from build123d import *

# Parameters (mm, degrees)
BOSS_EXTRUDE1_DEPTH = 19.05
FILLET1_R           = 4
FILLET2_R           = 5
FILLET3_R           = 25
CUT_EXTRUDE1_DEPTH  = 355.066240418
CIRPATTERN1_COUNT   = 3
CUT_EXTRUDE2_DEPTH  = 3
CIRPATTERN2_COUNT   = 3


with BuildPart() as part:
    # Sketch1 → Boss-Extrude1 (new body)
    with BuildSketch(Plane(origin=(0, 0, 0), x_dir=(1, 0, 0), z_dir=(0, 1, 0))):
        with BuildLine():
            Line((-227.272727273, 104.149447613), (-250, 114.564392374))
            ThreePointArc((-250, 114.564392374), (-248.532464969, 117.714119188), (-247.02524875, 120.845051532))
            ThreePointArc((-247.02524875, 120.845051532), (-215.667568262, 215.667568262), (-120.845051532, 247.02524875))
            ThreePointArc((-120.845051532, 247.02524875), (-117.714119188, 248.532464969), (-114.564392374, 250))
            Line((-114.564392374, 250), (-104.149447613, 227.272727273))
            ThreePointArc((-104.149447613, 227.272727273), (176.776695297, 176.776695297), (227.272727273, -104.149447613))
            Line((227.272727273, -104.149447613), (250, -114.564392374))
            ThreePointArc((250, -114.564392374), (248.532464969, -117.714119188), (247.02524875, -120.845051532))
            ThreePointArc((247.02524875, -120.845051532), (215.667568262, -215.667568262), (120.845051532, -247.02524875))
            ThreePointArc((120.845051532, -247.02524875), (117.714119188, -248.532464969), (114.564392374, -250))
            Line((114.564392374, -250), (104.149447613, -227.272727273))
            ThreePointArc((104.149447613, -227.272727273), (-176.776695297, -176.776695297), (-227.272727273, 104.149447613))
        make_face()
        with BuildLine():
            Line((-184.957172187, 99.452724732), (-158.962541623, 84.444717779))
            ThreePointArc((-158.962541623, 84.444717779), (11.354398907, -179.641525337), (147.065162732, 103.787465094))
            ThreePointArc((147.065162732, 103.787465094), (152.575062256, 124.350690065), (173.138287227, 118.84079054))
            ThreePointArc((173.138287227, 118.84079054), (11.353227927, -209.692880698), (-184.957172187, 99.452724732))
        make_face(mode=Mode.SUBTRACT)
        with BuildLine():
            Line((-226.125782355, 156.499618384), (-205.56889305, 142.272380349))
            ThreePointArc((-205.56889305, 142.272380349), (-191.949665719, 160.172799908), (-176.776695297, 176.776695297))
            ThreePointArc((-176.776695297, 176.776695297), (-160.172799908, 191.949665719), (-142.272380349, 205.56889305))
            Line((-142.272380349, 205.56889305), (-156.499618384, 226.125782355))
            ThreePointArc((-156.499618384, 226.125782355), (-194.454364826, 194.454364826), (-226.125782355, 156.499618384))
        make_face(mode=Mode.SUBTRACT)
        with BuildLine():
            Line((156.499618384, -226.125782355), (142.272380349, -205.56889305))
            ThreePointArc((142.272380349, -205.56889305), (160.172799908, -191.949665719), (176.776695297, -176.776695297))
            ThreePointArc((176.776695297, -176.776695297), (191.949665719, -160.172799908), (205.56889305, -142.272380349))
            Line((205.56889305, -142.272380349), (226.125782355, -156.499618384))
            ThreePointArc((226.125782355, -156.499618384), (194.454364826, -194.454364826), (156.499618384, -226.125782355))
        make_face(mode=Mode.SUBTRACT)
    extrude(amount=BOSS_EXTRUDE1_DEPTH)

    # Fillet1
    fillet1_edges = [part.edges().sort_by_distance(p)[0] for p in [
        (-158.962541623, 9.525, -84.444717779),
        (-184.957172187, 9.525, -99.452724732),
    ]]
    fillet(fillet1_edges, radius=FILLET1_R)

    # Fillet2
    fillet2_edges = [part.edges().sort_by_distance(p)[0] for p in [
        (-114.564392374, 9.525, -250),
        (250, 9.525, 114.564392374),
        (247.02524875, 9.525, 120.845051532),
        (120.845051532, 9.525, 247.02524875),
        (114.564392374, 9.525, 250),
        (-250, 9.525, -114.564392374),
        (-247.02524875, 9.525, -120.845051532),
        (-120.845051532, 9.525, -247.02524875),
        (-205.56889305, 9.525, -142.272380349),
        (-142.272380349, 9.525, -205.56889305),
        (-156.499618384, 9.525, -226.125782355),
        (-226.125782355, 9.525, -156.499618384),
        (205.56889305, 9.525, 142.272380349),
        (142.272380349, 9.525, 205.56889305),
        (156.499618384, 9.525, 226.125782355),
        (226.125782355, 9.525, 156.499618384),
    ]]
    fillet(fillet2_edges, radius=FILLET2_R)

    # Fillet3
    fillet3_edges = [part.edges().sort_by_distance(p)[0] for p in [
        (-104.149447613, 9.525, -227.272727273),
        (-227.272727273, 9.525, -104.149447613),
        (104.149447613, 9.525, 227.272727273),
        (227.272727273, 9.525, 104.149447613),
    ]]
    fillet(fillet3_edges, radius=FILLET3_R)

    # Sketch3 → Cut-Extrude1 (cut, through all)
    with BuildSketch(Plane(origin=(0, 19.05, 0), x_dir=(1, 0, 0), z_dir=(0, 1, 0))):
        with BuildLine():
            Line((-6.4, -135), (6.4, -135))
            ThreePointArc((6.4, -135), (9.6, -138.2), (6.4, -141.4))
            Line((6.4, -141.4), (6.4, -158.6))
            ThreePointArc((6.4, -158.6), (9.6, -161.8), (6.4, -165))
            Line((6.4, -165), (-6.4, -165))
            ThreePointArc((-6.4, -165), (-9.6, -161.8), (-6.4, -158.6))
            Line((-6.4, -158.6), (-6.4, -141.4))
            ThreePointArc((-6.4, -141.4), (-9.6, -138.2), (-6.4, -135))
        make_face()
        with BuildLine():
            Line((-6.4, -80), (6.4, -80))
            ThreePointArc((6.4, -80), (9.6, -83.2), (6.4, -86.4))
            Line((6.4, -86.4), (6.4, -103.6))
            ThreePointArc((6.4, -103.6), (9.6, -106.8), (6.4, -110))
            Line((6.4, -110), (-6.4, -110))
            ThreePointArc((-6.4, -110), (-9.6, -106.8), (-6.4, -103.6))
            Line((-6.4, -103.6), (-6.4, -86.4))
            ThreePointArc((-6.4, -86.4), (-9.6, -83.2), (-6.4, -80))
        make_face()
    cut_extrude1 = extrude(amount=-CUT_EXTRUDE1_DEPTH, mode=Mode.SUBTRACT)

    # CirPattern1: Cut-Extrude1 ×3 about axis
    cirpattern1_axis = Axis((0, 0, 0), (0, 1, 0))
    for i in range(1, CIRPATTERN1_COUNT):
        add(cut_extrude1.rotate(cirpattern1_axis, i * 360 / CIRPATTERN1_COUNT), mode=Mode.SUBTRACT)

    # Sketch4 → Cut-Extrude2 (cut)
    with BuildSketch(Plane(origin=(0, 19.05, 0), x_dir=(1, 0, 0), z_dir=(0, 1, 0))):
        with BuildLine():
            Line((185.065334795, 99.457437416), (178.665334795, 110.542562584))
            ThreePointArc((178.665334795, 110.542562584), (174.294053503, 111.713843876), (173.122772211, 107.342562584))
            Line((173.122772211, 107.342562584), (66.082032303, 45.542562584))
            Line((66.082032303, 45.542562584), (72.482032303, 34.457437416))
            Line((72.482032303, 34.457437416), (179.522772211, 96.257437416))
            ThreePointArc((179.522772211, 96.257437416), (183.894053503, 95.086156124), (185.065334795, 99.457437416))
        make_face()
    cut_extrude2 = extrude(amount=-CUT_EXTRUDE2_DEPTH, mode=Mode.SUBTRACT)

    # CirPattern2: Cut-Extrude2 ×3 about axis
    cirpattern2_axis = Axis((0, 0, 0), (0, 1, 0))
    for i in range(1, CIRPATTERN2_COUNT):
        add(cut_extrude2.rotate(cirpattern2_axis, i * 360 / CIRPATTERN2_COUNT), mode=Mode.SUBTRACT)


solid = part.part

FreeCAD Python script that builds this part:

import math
import FreeCAD as App
import Part
import Sketcher
from FreeCAD import Vector
Q = App.Units.Quantity


def edges_at(feature, points):
    """Names of the edges that pass closest to the given points."""
    edges = feature.Shape.Edges
    near = lambda p: min(range(len(edges)), key=lambda i: edges[i].distToShape(Part.Vertex(*p))[0])
    return sorted({f"Edge{near(p) + 1}" for p in points})

doc = App.newDocument("Part")
params = doc.addObject("Spreadsheet::Sheet", "Params")
for row, (alias, value) in enumerate([
    ("sketch1_radius", "250 mm"),
    ("sketch1_radius2", "275 mm"),
    ("sketch1_radius3", "180 mm"),
    ("sketch1_radius4", "210 mm"),
    ("pad1_length", "19.05 mm"),
    ("fillet_radius", "4 mm"),
    ("fillet2_radius", "5 mm"),
    ("fillet3_radius", "25 mm"),
    ("sketch2_radius", "3.2 mm"),
    ("sketch2_width", "12.8 mm"),
    ("sketch2_height", "17.2 mm"),
    ("sketch3_radius", "3.2 mm"),
    ("sketch3_length", "12.8 mm"),
    ("sketch3_length2", "123.6 mm"),
    ("pocket2_length", "3 mm"),
], start=1):
    params.set(f"A{row}", alias)
    params.set(f"B{row}", "=" + value)
    params.setAlias(f"B{row}", alias)

body = doc.addObject("PartDesign::Body", "Body")

# Sketch on XZ plane
sketch1 = doc.addObject("Sketcher::SketchObject", "Sketch")
body.addObject(sketch1)
sketch1.AttachmentSupport = (doc.XZ_Plane, [""])
sketch1.MapMode = "FlatFace"
sketch1.addGeometry([
    Part.LineSegment(Vector(-250, -114.564392, 0), Vector(-227.272727, -104.149448, 0)),  # 0
    Part.ArcOfCircle(Part.Circle(Vector(0, 0, 0), Vector(0, 0, 1), 250), math.radians(65.380023), math.radians(204.619977)),  # 1
    Part.LineSegment(Vector(104.149448, 227.272727, 0), Vector(114.564392, 250, 0)),  # 2
    Part.ArcOfCircle(Part.Circle(Vector(-0.000001, -0.000003, 0), Vector(0, 0, 1), 275.000003), math.radians(63.932064), math.radians(65.380023)),  # 3
    Part.ArcOfCircle(Part.Circle(Vector(137.083786, 137.083786, 0), Vector(0, 0, 1), 111.134251), math.radians(-8.402036), math.radians(98.402036)),  # 4
    Part.ArcOfCircle(Part.Circle(Vector(-0.000003, -0.000001, 0), Vector(0, 0, 1), 275.000003), math.radians(24.619977), math.radians(26.067936)),  # 5
    Part.LineSegment(Vector(250, 114.564392, 0), Vector(227.272727, 104.149448, 0)),  # 6
    Part.ArcOfCircle(Part.Circle(Vector(0, 0, 0), Vector(0, 0, 1), 250), math.radians(-114.619977), math.radians(24.619977)),  # 7
    Part.LineSegment(Vector(-104.149448, -227.272727, 0), Vector(-114.564392, -250, 0)),  # 8
    Part.ArcOfCircle(Part.Circle(Vector(0.000001, 0.000003, 0), Vector(0, 0, 1), 275.000003), math.radians(-116.067936), math.radians(-114.619977)),  # 9
    Part.ArcOfCircle(Part.Circle(Vector(-137.083786, -137.083786, 0), Vector(0, 0, 1), 111.134251), math.radians(171.597964), math.radians(278.402036)),  # 10
    Part.ArcOfCircle(Part.Circle(Vector(0.000003, 0.000001, 0), Vector(0, 0, 1), 275.000003), math.radians(-155.380023), math.radians(-153.932064)),  # 11
    Part.LineSegment(Vector(156.499618, 226.125782, 0), Vector(142.27238, 205.568893, 0)),  # 12
    Part.ArcOfCircle(Part.Circle(Vector(0, 0, 0), Vector(0, 0, 1), 250), math.radians(45), math.radians(55.31324)),  # 13
    Part.ArcOfCircle(Part.Circle(Vector(0, 0, 0), Vector(0, 0, 1), 250), math.radians(34.68676), math.radians(45)),  # 14
    Part.LineSegment(Vector(205.568893, 142.27238, 0), Vector(226.125782, 156.499618, 0)),  # 15
    Part.ArcOfCircle(Part.Circle(Vector(0, 0, 0), Vector(0, 0, 1), 275), math.radians(34.68676), math.radians(55.31324)),  # 16
    Part.LineSegment(Vector(-184.957172, -99.452725, 0), Vector(-158.962542, -84.444718, 0)),  # 17
    Part.ArcOfCircle(Part.Circle(Vector(0, 0, 0), Vector(0, 0, 1), 180), math.radians(-35.21155), math.radians(207.978313)),  # 18
    Part.ArcOfCircle(Part.Circle(Vector(160.101725, -111.314128, 0), Vector(0, 0, 1), 15.053325), math.radians(150), math.radians(330)),  # 19
    Part.ArcOfCircle(Part.Circle(Vector(0, 0, 0), Vector(0, 0, 1), 210), math.radians(-34.465405), math.radians(208.267221)),  # 20
    Part.ArcOfCircle(Part.Circle(Vector(0, 0, 0), Vector(0, 0, 1), 275), math.radians(-145.31324), math.radians(-124.68676)),  # 21
    Part.LineSegment(Vector(-156.499618, -226.125782, 0), Vector(-142.27238, -205.568893, 0)),  # 22
    Part.ArcOfCircle(Part.Circle(Vector(0, 0, 0), Vector(0, 0, 1), 250), math.radians(-135), math.radians(-124.68676)),  # 23
    Part.ArcOfCircle(Part.Circle(Vector(0, 0, 0), Vector(0, 0, 1), 250), math.radians(-145.31324), math.radians(-135)),  # 24
    Part.LineSegment(Vector(-205.568893, -142.27238, 0), Vector(-226.125782, -156.499618, 0)),  # 25
], False)
sketch1.addConstraint([
    Sketcher.Constraint("Coincident", 0, 2, 1, 2),
    Sketcher.Constraint("Coincident", 1, 1, 2, 1),
    Sketcher.Constraint("Coincident", 2, 2, 3, 2),
    Sketcher.Constraint("Coincident", 3, 1, 4, 2),
    Sketcher.Constraint("Coincident", 4, 1, 5, 2),
    Sketcher.Constraint("Coincident", 5, 1, 6, 1),
    Sketcher.Constraint("Coincident", 6, 2, 7, 2),
    Sketcher.Constraint("Coincident", 7, 1, 8, 1),
    Sketcher.Constraint("Coincident", 8, 2, 9, 2),
    Sketcher.Constraint("Coincident", 9, 1, 10, 2),
    Sketcher.Constraint("Coincident", 10, 1, 11, 2),
    Sketcher.Constraint("Coincident", 11, 1, 0, 1),
    Sketcher.Constraint("Coincident", 12, 2, 13, 2),
    Sketcher.Constraint("Tangent", 13, 1, 14, 2),
    Sketcher.Constraint("Coincident", 14, 1, 15, 1),
    Sketcher.Constraint("Coincident", 15, 2, 16, 1),
    Sketcher.Constraint("Coincident", 16, 2, 12, 1),
    Sketcher.Constraint("Coincident", 17, 2, 18, 2),
    Sketcher.Constraint("Coincident", 18, 1, 19, 1),
    Sketcher.Constraint("Coincident", 19, 2, 20, 1),
    Sketcher.Constraint("Coincident", 20, 2, 17, 1),
    Sketcher.Constraint("Coincident", 21, 2, 22, 1),
    Sketcher.Constraint("Coincident", 22, 2, 23, 2),
    Sketcher.Constraint("Tangent", 23, 1, 24, 2),
    Sketcher.Constraint("Coincident", 24, 1, 25, 1),
    Sketcher.Constraint("Coincident", 25, 2, 21, 1),
    Sketcher.Constraint("Coincident", 1, 3, -1, 1),
    Sketcher.Constraint("Coincident", 3, 3, -1, 1),
    Sketcher.Constraint("Coincident", 5, 3, -1, 1),
    Sketcher.Constraint("Coincident", 7, 3, -1, 1),
    Sketcher.Constraint("Coincident", 9, 3, -1, 1),
    Sketcher.Constraint("Coincident", 11, 3, -1, 1),
    Sketcher.Constraint("Coincident", 13, 3, -1, 1),
    Sketcher.Constraint("Coincident", 16, 3, -1, 1),
    Sketcher.Constraint("Coincident", 18, 3, -1, 1),
    Sketcher.Constraint("Coincident", 20, 3, -1, 1),
    Sketcher.Constraint("Coincident", 21, 3, -1, 1),
    Sketcher.Constraint("Coincident", 23, 3, -1, 1),
    Sketcher.Constraint("Equal", 3, 5),
    Sketcher.Constraint("Equal", 1, 7),
    Sketcher.Constraint("Equal", 5, 9),
    Sketcher.Constraint("Equal", 4, 10),
    Sketcher.Constraint("Equal", 9, 11),
    Sketcher.Constraint("Equal", 7, 13),
    Sketcher.Constraint("Equal", 13, 14),
    Sketcher.Constraint("Equal", 16, 21),
    Sketcher.Constraint("Equal", 14, 23),
    Sketcher.Constraint("Equal", 23, 24),
    Sketcher.Constraint("Symmetric", 4, 3, 10, 3, -1, 1),
    Sketcher.Constraint("Parallel", 0, 6),
    Sketcher.Constraint("Parallel", 2, 8),
    Sketcher.Constraint("Parallel", 12, 22),
    Sketcher.Constraint("Parallel", 15, 25),
    Sketcher.Constraint("Equal", 8, 12),
    Sketcher.Constraint("Radius", 1, Q("250 mm")),
    Sketcher.Constraint("Radius", 16, Q("275 mm")),
    Sketcher.Constraint("Radius", 18, Q("180 mm")),
    Sketcher.Constraint("Radius", 20, Q("210 mm")),
    Sketcher.Constraint("Angle", 17, Q("30 deg")),
    Sketcher.Constraint("DistanceY", -1, 1, 2, 2, Q("250 mm")),
    Sketcher.Constraint("DistanceX", -1, 1, 5, 1, Q("250 mm")),
    Sketcher.Constraint("DistanceY", 8, 2, -1, 1, Q("250 mm")),
    Sketcher.Constraint("DistanceX", 11, 1, -1, 1, Q("250 mm")),
    Sketcher.Constraint("Radius", 4, Q("111.134251 mm")),
    Sketcher.Constraint("Radius", 19, Q("15.053325 mm")),
    Sketcher.Constraint("DistanceX", 1, 1, 4, 1, Q("142.875801 mm")),
    Sketcher.Constraint("DistanceY", 6, 2, 3, 1, Q("142.875801 mm")),
    Sketcher.Constraint("DistanceX", -1, 1, 3, 1, Q("120.845052 mm")),
    Sketcher.Constraint("DistanceX", -1, 1, 4, 1, Q("247.025249 mm")),
    Sketcher.Constraint("DistanceX", -1, 1, 12, 2, Q("142.27238 mm")),
    Sketcher.Constraint("DistanceY", -1, 1, 14, 1, Q("142.27238 mm")),
    Sketcher.Constraint("DistanceY", -1, 1, 15, 2, Q("156.499618 mm")),
    Sketcher.Constraint("DistanceX", -1, 1, 16, 2, Q("156.499618 mm")),
    Sketcher.Constraint("DistanceX", 17, 2, -1, 1, Q("158.962542 mm")),
    Sketcher.Constraint("DistanceY", 19, 2, -1, 1, Q("118.840791 mm")),
    Sketcher.Constraint("DistanceX", 21, 2, -1, 1, Q("156.499618 mm")),
    Sketcher.Constraint("DistanceY", 24, 1, -1, 1, Q("142.27238 mm")),
    Sketcher.Constraint("DistanceY", 19, 3, 11, 3, Q("111.314129 mm")),
    Sketcher.Constraint("DistanceX", 4, 3, 13, 1, Q("39.69291 mm")),
    Sketcher.Constraint("DistanceX", 23, 1, 10, 3, Q("39.69291 mm")),
])
sketch1.setExpression("Constraints[54]", "Params.sketch1_radius")
sketch1.setExpression("Constraints[55]", "Params.sketch1_radius2")
sketch1.setExpression("Constraints[56]", "Params.sketch1_radius3")
sketch1.setExpression("Constraints[57]", "Params.sketch1_radius4")
pad1 = doc.addObject("PartDesign::Pad", "Pad")
body.addObject(pad1)
pad1.Profile = sketch1
pad1.setExpression("Length", "Params.pad1_length")
pad1.Reversed = True
doc.recompute()

fillet = doc.addObject("PartDesign::Fillet", "Fillet")
body.addObject(fillet)
fillet.Base = (pad1, edges_at(pad1, [(-158.963, 9.525, -84.445), (-184.957, 9.525, -99.453)]))
fillet.setExpression("Radius", "Params.fillet_radius")
doc.recompute()

fillet2 = doc.addObject("PartDesign::Fillet", "Fillet001")
body.addObject(fillet2)
fillet2.Base = (fillet, edges_at(fillet, [
    (-114.564, 9.525, -250),
    (250, 9.525, 114.564),
    (247.025, 9.525, 120.845),
    (120.845, 9.525, 247.025),
    (114.564, 9.525, 250),
    (-250, 9.525, -114.564),
    (-247.025, 9.525, -120.845),
    (-120.845, 9.525, -247.025),
    (-205.569, 9.525, -142.272),
    (-142.272, 9.525, -205.569),
    (-156.5, 9.525, -226.126),
    (-226.126, 9.525, -156.5),
    (205.569, 9.525, 142.272),
    (142.272, 9.525, 205.569),
    (156.5, 9.525, 226.126),
    (226.126, 9.525, 156.5),
]))
fillet2.setExpression("Radius", "Params.fillet2_radius")
doc.recompute()

fillet3 = doc.addObject("PartDesign::Fillet", "Fillet002")
body.addObject(fillet3)
fillet3.Base = (fillet2, edges_at(fillet2, [
    (-104.149, 9.525, -227.273),
    (-227.273, 9.525, -104.149),
    (104.149, 9.525, 227.273),
    (227.273, 9.525, 104.149),
]))
fillet3.setExpression("Radius", "Params.fillet3_radius")

# Sketch on XZ plane
sketch2 = doc.addObject("Sketcher::SketchObject", "Sketch001")
body.addObject(sketch2)
sketch2.AttachmentSupport = (doc.XZ_Plane, [""])
sketch2.MapMode = "FlatFace"
sketch2.AttachmentOffset = App.Placement(Vector(0, 0, -19.05), App.Rotation())
sketch2.addGeometry([
    Part.LineSegment(Vector(6.4, 135, 0), Vector(-6.4, 135, 0)),  # 0
    Part.ArcOfCircle(Part.Circle(Vector(-6.4, 138.2, 0), Vector(0, 0, 1), 3.2), math.radians(90), math.radians(270)),  # 1
    Part.LineSegment(Vector(-6.4, 141.4, 0), Vector(-6.4, 158.6, 0)),  # 2
    Part.ArcOfCircle(Part.Circle(Vector(-6.4, 161.8, 0), Vector(0, 0, 1), 3.2), math.radians(90), math.radians(270)),  # 3
    Part.LineSegment(Vector(-6.4, 165, 0), Vector(6.4, 165, 0)),  # 4
    Part.ArcOfCircle(Part.Circle(Vector(6.4, 161.8, 0), Vector(0, 0, 1), 3.2), math.radians(-90), math.radians(90)),  # 5
    Part.LineSegment(Vector(6.4, 158.6, 0), Vector(6.4, 141.4, 0)),  # 6
    Part.ArcOfCircle(Part.Circle(Vector(6.4, 138.2, 0), Vector(0, 0, 1), 3.2), math.radians(-90), math.radians(90)),  # 7
    Part.LineSegment(Vector(6.4, 80, 0), Vector(-6.4, 80, 0)),  # 8
    Part.ArcOfCircle(Part.Circle(Vector(-6.4, 83.2, 0), Vector(0, 0, 1), 3.2), math.radians(90), math.radians(270)),  # 9
    Part.LineSegment(Vector(-6.4, 86.4, 0), Vector(-6.4, 103.6, 0)),  # 10
    Part.ArcOfCircle(Part.Circle(Vector(-6.4, 106.8, 0), Vector(0, 0, 1), 3.2), math.radians(90), math.radians(270)),  # 11
    Part.LineSegment(Vector(-6.4, 110, 0), Vector(6.4, 110, 0)),  # 12
    Part.ArcOfCircle(Part.Circle(Vector(6.4, 106.8, 0), Vector(0, 0, 1), 3.2), math.radians(-90), math.radians(90)),  # 13
    Part.LineSegment(Vector(6.4, 103.6, 0), Vector(6.4, 86.4, 0)),  # 14
    Part.ArcOfCircle(Part.Circle(Vector(6.4, 83.2, 0), Vector(0, 0, 1), 3.2), math.radians(-90), math.radians(90)),  # 15
], False)
sketch2.addConstraint([
    Sketcher.Constraint("Tangent", 0, 2, 1, 2),
    Sketcher.Constraint("Coincident", 1, 1, 2, 1),
    Sketcher.Constraint("Coincident", 2, 2, 3, 2),
    Sketcher.Constraint("Tangent", 3, 1, 4, 1),
    Sketcher.Constraint("Tangent", 4, 2, 5, 2),
    Sketcher.Constraint("Coincident", 5, 1, 6, 1),
    Sketcher.Constraint("Coincident", 6, 2, 7, 2),
    Sketcher.Constraint("Tangent", 7, 1, 0, 1),
    Sketcher.Constraint("Tangent", 8, 2, 9, 2),
    Sketcher.Constraint("Coincident", 9, 1, 10, 1),
    Sketcher.Constraint("Coincident", 10, 2, 11, 2),
    Sketcher.Constraint("Tangent", 11, 1, 12, 1),
    Sketcher.Constraint("Tangent", 12, 2, 13, 2),
    Sketcher.Constraint("Coincident", 13, 1, 14, 1),
    Sketcher.Constraint("Coincident", 14, 2, 15, 2),
    Sketcher.Constraint("Tangent", 15, 1, 8, 1),
    Sketcher.Constraint("Horizontal", 0),
    Sketcher.Constraint("Vertical", 2),
    Sketcher.Constraint("Horizontal", 4),
    Sketcher.Constraint("Vertical", 6),
    Sketcher.Constraint("Horizontal", 8),
    Sketcher.Constraint("Vertical", 10),
    Sketcher.Constraint("Horizontal", 12),
    Sketcher.Constraint("Vertical", 14),
    Sketcher.Constraint("Equal", 1, 3),
    Sketcher.Constraint("Equal", 3, 5),
    Sketcher.Constraint("Equal", 5, 7),
    Sketcher.Constraint("Equal", 7, 9),
    Sketcher.Constraint("Equal", 9, 11),
    Sketcher.Constraint("Equal", 11, 13),
    Sketcher.Constraint("Equal", 13, 15),
    Sketcher.Constraint("Vertical", 1, 3, 3, 3),
    Sketcher.Constraint("Vertical", 5, 3, 7, 3),
    Sketcher.Constraint("Vertical", 3, 3, 9, 3),
    Sketcher.Constraint("Vertical", 9, 3, 11, 3),
    Sketcher.Constraint("Vertical", 7, 3, 13, 3),
    Sketcher.Constraint("Vertical", 13, 3, 15, 3),
    Sketcher.Constraint("Vertical", 0, 2, 1, 1),
    Sketcher.Constraint("Vertical", 4, 2, 5, 1),
    Sketcher.Constraint("Vertical", 8, 2, 9, 1),
    Sketcher.Constraint("Vertical", 12, 2, 13, 1),
    Sketcher.Constraint("Equal", 6, 10),
    Sketcher.Constraint("Radius", 1, Q("3.2 mm")),
    Sketcher.Constraint("DistanceX", 0, 2, 0, 1, Q("12.8 mm")),
    Sketcher.Constraint("DistanceY", 2, 1, 2, 2, Q("17.2 mm")),
    Sketcher.Constraint("DistanceY", -1, 1, 0, 2, Q("135 mm")),
    Sketcher.Constraint("DistanceY", -1, 1, 8, 2, Q("80 mm")),
    Sketcher.Constraint("DistanceX", 1, 3, -1, 1, Q("6.4 mm")),
])
sketch2.setExpression("Constraints[42]", "Params.sketch2_radius")
sketch2.setExpression("Constraints[43]", "Params.sketch2_width")
sketch2.setExpression("Constraints[44]", "Params.sketch2_height")
pocket1 = doc.addObject("PartDesign::Pocket", "Pocket")
body.addObject(pocket1)
pocket1.Profile = sketch2
pocket1.Type = "ThroughAll"
pocket1.Reversed = True
doc.recompute()

polarpattern = doc.addObject("PartDesign::PolarPattern", "PolarPattern")
body.addObject(polarpattern)
polarpattern.Originals = [pocket1]
polarpattern.Axis = (doc.Y_Axis, [""])
polarpattern.Angle = 360
polarpattern.Occurrences = 3
body.Tip = polarpattern

# Sketch on XZ plane
sketch3 = doc.addObject("Sketcher::SketchObject", "Sketch002")
body.addObject(sketch3)
sketch3.AttachmentSupport = (doc.XZ_Plane, [""])
sketch3.MapMode = "FlatFace"
sketch3.AttachmentOffset = App.Placement(Vector(0, 0, -19.05), App.Rotation())
sketch3.addGeometry([
    Part.LineSegment(Vector(185.065335, -99.457437, 0), Vector(178.665335, -110.542563, 0)),  # 0
    Part.ArcOfCircle(Part.Circle(Vector(175.894054, -108.942563, 0), Vector(0, 0, 1), 3.2), math.radians(150), math.radians(330)),  # 1
    Part.LineSegment(Vector(173.122772, -107.342563, 0), Vector(66.082032, -45.542563, 0)),  # 2
    Part.LineSegment(Vector(66.082032, -45.542563, 0), Vector(72.482032, -34.457437, 0)),  # 3
    Part.LineSegment(Vector(72.482032, -34.457437, 0), Vector(179.522772, -96.257437, 0)),  # 4
    Part.ArcOfCircle(Part.Circle(Vector(182.294054, -97.857437, 0), Vector(0, 0, 1), 3.2), math.radians(-30), math.radians(150)),  # 5
], False)
sketch3.addConstraint([
    Sketcher.Constraint("Tangent", 0, 2, 1, 2),
    Sketcher.Constraint("Coincident", 1, 1, 2, 1),
    Sketcher.Constraint("Coincident", 2, 2, 3, 1),
    Sketcher.Constraint("Coincident", 3, 2, 4, 1),
    Sketcher.Constraint("Coincident", 4, 2, 5, 2),
    Sketcher.Constraint("Tangent", 5, 1, 0, 1),
    Sketcher.Constraint("Equal", 1, 5),
    Sketcher.Constraint("Perpendicular", 0, 2),
    Sketcher.Constraint("Perpendicular", 2, 3),
    Sketcher.Constraint("Perpendicular", 3, 4),
    Sketcher.Constraint("Equal", 0, 3),
    Sketcher.Constraint("Radius", 1, Q("3.2 mm")),
    Sketcher.Constraint("Angle", 0, Q("-120 deg")),
    Sketcher.Constraint("DistanceY", 0, 2, 2, 2, Q("65 mm")),
    Sketcher.Constraint("Distance", 0, Q("12.8 mm")),
    Sketcher.Constraint("Distance", 2, Q("123.6 mm")),
    Sketcher.Constraint("DistanceX", -1, 1, 1, 3, Q("175.894054 mm")),
    Sketcher.Constraint("DistanceY", 1, 3, -1, 1, Q("108.942563 mm")),
])
sketch3.setExpression("Constraints[11]", "Params.sketch3_radius")
sketch3.setExpression("Constraints[14]", "Params.sketch3_length")
sketch3.setExpression("Constraints[15]", "Params.sketch3_length2")
pocket2 = doc.addObject("PartDesign::Pocket", "Pocket001")
body.addObject(pocket2)
pocket2.Profile = sketch3
pocket2.setExpression("Length", "Params.pocket2_length")
pocket2.Reversed = True
doc.recompute()

polarpattern2 = doc.addObject("PartDesign::PolarPattern", "PolarPattern001")
body.addObject(polarpattern2)
polarpattern2.Originals = [pocket2]
polarpattern2.Axis = (doc.Y_Axis, [""])
polarpattern2.Angle = 360
polarpattern2.Occurrences = 3
body.Tip = polarpattern2

doc.recompute()
